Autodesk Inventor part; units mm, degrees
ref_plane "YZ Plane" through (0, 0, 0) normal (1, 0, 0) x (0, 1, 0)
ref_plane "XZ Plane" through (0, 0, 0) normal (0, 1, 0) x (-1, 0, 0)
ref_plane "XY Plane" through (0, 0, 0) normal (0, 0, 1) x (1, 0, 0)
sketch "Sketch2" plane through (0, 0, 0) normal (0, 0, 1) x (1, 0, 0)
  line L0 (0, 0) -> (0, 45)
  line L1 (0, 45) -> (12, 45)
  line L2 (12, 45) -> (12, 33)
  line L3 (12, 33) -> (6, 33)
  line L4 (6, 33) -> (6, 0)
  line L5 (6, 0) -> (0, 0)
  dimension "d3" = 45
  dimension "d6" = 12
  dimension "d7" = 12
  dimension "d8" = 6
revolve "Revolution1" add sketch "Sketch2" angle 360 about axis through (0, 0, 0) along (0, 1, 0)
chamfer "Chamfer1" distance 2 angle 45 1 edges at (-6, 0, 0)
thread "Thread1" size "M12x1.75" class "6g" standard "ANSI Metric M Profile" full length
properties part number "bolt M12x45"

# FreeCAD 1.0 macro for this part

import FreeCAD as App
import Part
import Sketcher
from FreeCAD import Vector
Q = App.Units.Quantity


def edges_at(feature, points):
    """Names of the edges that pass closest to the given points."""
    edges = feature.Shape.Edges
    near = lambda p: min(range(len(edges)), key=lambda i: edges[i].distToShape(Part.Vertex(*p))[0])
    return sorted({f"Edge{near(p) + 1}" for p in points})


def add_polygon(sketch, points):
    """Adds a closed chain of lines whose ends are joined by coincident constraints."""
    first, n = sketch.GeometryCount, len(points)
    for a, b in zip(points, points[1:] + points[:1]):
        sketch.addGeometry(Part.LineSegment(App.Vector(*a, 0), App.Vector(*b, 0)), False)
    for i in range(n):
        sketch.addConstraint(Sketcher.Constraint("Coincident", first + i, 2, first + (i + 1) % n, 1))

doc = App.newDocument("Part")
body = doc.addObject("PartDesign::Body", "Body")

# Sketch on XY plane
sketch1 = doc.addObject("Sketcher::SketchObject", "Sketch")
body.addObject(sketch1)
sketch1.AttachmentSupport = (doc.XY_Plane, [""])
sketch1.MapMode = "FlatFace"
add_polygon(sketch1, [(0, 45), (0, 0), (6, 0), (6, 33), (12, 33), (12, 45)])  # lines 0-5
sketch1.addConstraint([
    Sketcher.Constraint("Vertical", 0),
    Sketcher.Constraint("Horizontal", 1),
    Sketcher.Constraint("Vertical", 2),
    Sketcher.Constraint("Horizontal", 3),
    Sketcher.Constraint("Vertical", 4),
    Sketcher.Constraint("Horizontal", 5),
    Sketcher.Constraint("Coincident", 0, 2, -1, 1),
    Sketcher.Constraint("Equal", 1, 3),
    Sketcher.Constraint("Equal", 5, 4),
    Sketcher.Constraint("DistanceX", 1, 1, 1, 2, Q("6 mm")),
    Sketcher.Constraint("DistanceY", 0, 2, 0, 1, Q("45 mm")),
])
revolution = doc.addObject("PartDesign::Revolution", "Revolution")
body.addObject(revolution)
revolution.Profile = sketch1
revolution.ReferenceAxis = (sketch1, ["V_Axis"])
revolution.Angle = 360
doc.recompute()

chamfer = doc.addObject("PartDesign::Chamfer", "Chamfer")
body.addObject(chamfer)
chamfer.Base = (revolution, edges_at(revolution, [(-6, 0, 0)]))
chamfer.Size = 2

doc.recompute()
